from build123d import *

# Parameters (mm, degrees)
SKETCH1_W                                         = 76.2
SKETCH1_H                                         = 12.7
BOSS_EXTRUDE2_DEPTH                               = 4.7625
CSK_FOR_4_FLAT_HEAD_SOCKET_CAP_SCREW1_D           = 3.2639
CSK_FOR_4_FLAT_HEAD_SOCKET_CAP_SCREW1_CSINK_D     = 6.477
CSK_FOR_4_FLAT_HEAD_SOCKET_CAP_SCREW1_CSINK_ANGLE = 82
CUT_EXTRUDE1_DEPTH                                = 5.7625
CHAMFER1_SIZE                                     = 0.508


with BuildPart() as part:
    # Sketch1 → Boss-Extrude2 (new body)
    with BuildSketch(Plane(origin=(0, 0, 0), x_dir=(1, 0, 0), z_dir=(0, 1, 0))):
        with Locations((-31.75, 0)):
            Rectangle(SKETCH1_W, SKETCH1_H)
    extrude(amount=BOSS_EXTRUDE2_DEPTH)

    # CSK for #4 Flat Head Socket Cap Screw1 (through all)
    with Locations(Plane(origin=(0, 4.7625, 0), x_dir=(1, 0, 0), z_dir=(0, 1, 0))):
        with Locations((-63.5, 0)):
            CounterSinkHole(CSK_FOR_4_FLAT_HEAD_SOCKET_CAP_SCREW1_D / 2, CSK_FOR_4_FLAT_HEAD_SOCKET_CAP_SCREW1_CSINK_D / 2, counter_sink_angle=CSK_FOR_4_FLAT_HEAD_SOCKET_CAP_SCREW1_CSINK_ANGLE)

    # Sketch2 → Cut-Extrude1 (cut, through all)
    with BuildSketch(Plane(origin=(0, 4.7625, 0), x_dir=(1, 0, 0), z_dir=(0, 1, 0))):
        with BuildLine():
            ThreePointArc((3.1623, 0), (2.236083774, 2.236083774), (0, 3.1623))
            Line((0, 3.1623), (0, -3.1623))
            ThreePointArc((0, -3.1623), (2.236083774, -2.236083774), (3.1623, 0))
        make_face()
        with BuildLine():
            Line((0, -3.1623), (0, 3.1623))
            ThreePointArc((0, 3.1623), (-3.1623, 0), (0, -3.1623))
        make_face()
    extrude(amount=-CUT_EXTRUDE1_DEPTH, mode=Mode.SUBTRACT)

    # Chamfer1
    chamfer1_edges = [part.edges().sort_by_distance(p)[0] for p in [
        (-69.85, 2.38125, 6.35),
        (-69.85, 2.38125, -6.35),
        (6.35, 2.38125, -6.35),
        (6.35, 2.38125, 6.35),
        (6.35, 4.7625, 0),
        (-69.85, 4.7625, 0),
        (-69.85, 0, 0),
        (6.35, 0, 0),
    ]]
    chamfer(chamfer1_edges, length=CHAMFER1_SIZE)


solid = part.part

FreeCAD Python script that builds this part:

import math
import FreeCAD as App
import Part
import Sketcher
Q = App.Units.Quantity


def edges_at(feature, points):
    """Names of the edges that pass closest to the given points."""
    edges = feature.Shape.Edges
    near = lambda p: min(range(len(edges)), key=lambda i: edges[i].distToShape(Part.Vertex(*p))[0])
    return sorted({f"Edge{near(p) + 1}" for p in points})


def add_polygon(sketch, points):
    """Adds a closed chain of lines whose ends are joined by coincident constraints."""
    first, n = sketch.GeometryCount, len(points)
    for a, b in zip(points, points[1:] + points[:1]):
        sketch.addGeometry(Part.LineSegment(App.Vector(*a, 0), App.Vector(*b, 0)), False)
    for i in range(n):
        sketch.addConstraint(Sketcher.Constraint("Coincident", first + i, 2, first + (i + 1) % n, 1))

doc = App.newDocument("Part")
body = doc.addObject("PartDesign::Body", "Body")

# Sketch on XZ plane
sketch1 = body.newObject("Sketcher::SketchObject", "Sketch")
sketch1.AttachmentSupport = (doc.getObject("XZ_Plane"), [""])
sketch1.MapMode = "FlatFace"
add_polygon(sketch1, [(-69.85, -6.35), (-69.85, 6.35), (6.35, 6.35), (6.35, -6.35)])  # lines 0-3
sketch1.addConstraint([
    Sketcher.Constraint("Vertical", 0),
    Sketcher.Constraint("Horizontal", 1),
    Sketcher.Constraint("Vertical", 2),
    Sketcher.Constraint("Horizontal", 3),
    Sketcher.Constraint("DistanceX", 1, 1, 1, 2, Q("3 in")),
    Sketcher.Constraint("DistanceY", 0, 1, 0, 2, Q("0.5 in")),
    Sketcher.Constraint("DistanceX", 0, 2, -1, 1, Q("2.75 in")),
    Sketcher.Constraint("DistanceY", -1, 1, 0, 2, Q("0.25 in")),
])
pad1 = body.newObject("PartDesign::Pad", "Pad")
pad1.Profile = sketch1
pad1.Length = Q("0.1875 in")
pad1.Reversed = True

# Sketch on XZ plane
sketch2 = body.newObject("Sketcher::SketchObject", "Sketch001")
sketch2.AttachmentSupport = (doc.getObject("XZ_Plane"), [""])
sketch2.MapMode = "FlatFace"
sketch2.AttachmentOffset = App.Placement(App.Vector(0, 0, -0.1875 * 25.4), App.Rotation())
sketch2.addGeometry(Part.Circle(App.Vector(-63.5, 0, 0), App.Vector(0, 0, 1), 1.63195), False)
sketch2.addConstraint([
    Sketcher.Constraint("PointOnObject", 0, 3, -1),
    Sketcher.Constraint("Diameter", 0, Q("0.1285 in")),
    Sketcher.Constraint("DistanceX", 0, 3, -1, 1, Q("2.5 in")),
])
doc.recompute()
hole = body.newObject("PartDesign::Hole", "Hole")
hole.Profile = sketch2
hole.ThreadType = "None"
hole.Diameter = Q("0.1285 in")
hole.DepthType = "ThroughAll"
hole.HoleCutType = "Countersink"
hole.HoleCutDiameter = Q("0.255 in")
hole.HoleCutCountersinkAngle = 82
hole.Reversed = True

# Sketch on XZ plane
sketch3 = body.newObject("Sketcher::SketchObject", "Sketch002")
sketch3.AttachmentSupport = (doc.getObject("XZ_Plane"), [""])
sketch3.MapMode = "FlatFace"
sketch3.AttachmentOffset = App.Placement(App.Vector(0, 0, -0.1875 * 25.4), App.Rotation())
sketch3.addGeometry([
    Part.ArcOfCircle(Part.Circle(App.Vector(0, 0, 0), App.Vector(0, 0, 1), 3.1623), math.radians(-90), math.radians(0)),
    Part.ArcOfCircle(Part.Circle(App.Vector(0, 0, 0), App.Vector(0, 0, 1), 3.1623), math.radians(90), math.radians(270)),
    Part.ArcOfCircle(Part.Circle(App.Vector(0, 0, 0), App.Vector(0, 0, 1), 3.1623), math.radians(0), math.radians(90)),
], False)
sketch3.addConstraint([
    Sketcher.Constraint("Tangent", 0, 1, 1, 2),
    Sketcher.Constraint("Tangent", 1, 1, 2, 2),
    Sketcher.Constraint("Tangent", 2, 1, 0, 2),
    Sketcher.Constraint("Coincident", 0, 3, -1, 1),
    Sketcher.Constraint("PointOnObject", 0, 1, -2),
    Sketcher.Constraint("PointOnObject", 1, 1, -2),
    Sketcher.Constraint("PointOnObject", 2, 1, -1),
    Sketcher.Constraint("Radius", 0, Q("0.1245 in")),
])
pocket1 = body.newObject("PartDesign::Pocket", "Pocket")
pocket1.Profile = sketch3
pocket1.Type = "ThroughAll"
pocket1.Reversed = True
doc.recompute()

chamfer = body.newObject("PartDesign::Chamfer", "Chamfer")
chamfer.Base = (pocket1, edges_at(pocket1, [
    (-69.85, 2.381, 6.35),
    (-69.85, 2.381, -6.35),
    (6.35, 2.381, -6.35),
    (6.35, 2.381, 6.35),
    (6.35, 4.763, 0),
    (-69.85, 4.763, 0),
    (-69.85, 0, 0),
    (6.35, 0, 0),
]))
chamfer.Size = Q("0.02 in")

doc.recompute()
